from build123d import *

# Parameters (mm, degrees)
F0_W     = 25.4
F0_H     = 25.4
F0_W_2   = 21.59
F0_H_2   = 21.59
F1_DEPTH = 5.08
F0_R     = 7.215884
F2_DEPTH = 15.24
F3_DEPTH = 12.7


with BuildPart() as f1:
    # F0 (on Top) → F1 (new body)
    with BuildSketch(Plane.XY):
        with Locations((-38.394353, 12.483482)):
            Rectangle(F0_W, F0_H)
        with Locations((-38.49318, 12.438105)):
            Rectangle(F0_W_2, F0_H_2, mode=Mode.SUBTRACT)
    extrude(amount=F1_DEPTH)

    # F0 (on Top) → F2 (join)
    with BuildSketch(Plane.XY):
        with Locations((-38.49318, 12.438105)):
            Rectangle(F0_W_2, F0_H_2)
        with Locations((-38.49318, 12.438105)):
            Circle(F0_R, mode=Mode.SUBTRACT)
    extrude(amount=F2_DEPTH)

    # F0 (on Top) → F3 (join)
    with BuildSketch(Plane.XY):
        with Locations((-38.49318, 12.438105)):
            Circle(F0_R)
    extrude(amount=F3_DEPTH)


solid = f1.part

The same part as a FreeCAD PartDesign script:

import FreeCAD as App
import Part
import Sketcher
Q = App.Units.Quantity

doc = App.newDocument("Part")
body = doc.addObject("PartDesign::Body", "Body")

sketch1 = body.newObject("Sketcher::SketchObject", "Sketch")
sketch1.AttachmentSupport = (doc.getObject("XY_Plane"), [""])
sketch1.MapMode = "FlatFace"
sketch1.addGeometry([
    Part.LineSegment(App.Vector(-51, 25, 0), App.Vector(-51, 0, 0)),
    Part.LineSegment(App.Vector(-51, 0, 0), App.Vector(-26, 0, 0)),
    Part.LineSegment(App.Vector(-26, 0, 0), App.Vector(-26, 25, 0)),
    Part.LineSegment(App.Vector(-26, 25, 0), App.Vector(-51, 25, 0)),
    Part.LineSegment(App.Vector(-28, 2, 0), App.Vector(-49, 2, 0)),
    Part.LineSegment(App.Vector(-49, 2, 0), App.Vector(-49, 23, 0)),
    Part.LineSegment(App.Vector(-49, 23, 0), App.Vector(-28, 23, 0)),
    Part.LineSegment(App.Vector(-28, 23, 0), App.Vector(-28, 2, 0)),
], False)
sketch1.addConstraint([
    Sketcher.Constraint("Coincident", 0, 2, 1, 1),
    Sketcher.Constraint("Coincident", 1, 2, 2, 1),
    Sketcher.Constraint("Coincident", 2, 2, 3, 1),
    Sketcher.Constraint("Coincident", 3, 2, 0, 1),
    Sketcher.Constraint("Coincident", 4, 2, 5, 1),
    Sketcher.Constraint("Coincident", 5, 2, 6, 1),
    Sketcher.Constraint("Coincident", 6, 2, 7, 1),
    Sketcher.Constraint("Coincident", 7, 2, 4, 1),
    Sketcher.Constraint("Vertical", 0),
    Sketcher.Constraint("Horizontal", 1),
    Sketcher.Constraint("Vertical", 2),
    Sketcher.Constraint("Horizontal", 3),
    Sketcher.Constraint("Horizontal", 4),
    Sketcher.Constraint("Vertical", 5),
    Sketcher.Constraint("Horizontal", 6),
    Sketcher.Constraint("Vertical", 7),
    Sketcher.Constraint("Equal", 3, 0),
    Sketcher.Constraint("Equal", 6, 5),
    Sketcher.Constraint("DistanceX", 1, 1, 1, 2, Q("1 in")),
    Sketcher.Constraint("DistanceX", 4, 2, 4, 1, Q("0.85 in")),
    Sketcher.Constraint("DistanceX", 4, 2, -1, 1, 49.28818),
    Sketcher.Constraint("DistanceX", 0, 2, -1, 1, 51.094353),
    Sketcher.Constraint("DistanceY", 0, 2, -1, 1, 0.216518),
    Sketcher.Constraint("DistanceY", -1, 1, 4, 2, 1.643105),
])
pad1 = body.newObject("PartDesign::Pad", "Pad")
pad1.Profile = sketch1
pad1.Length = Q("0.2 in")

sketch2 = body.newObject("Sketcher::SketchObject", "Sketch001")
sketch2.AttachmentSupport = (doc.getObject("XY_Plane"), [""])
sketch2.MapMode = "FlatFace"
sketch2.addGeometry([
    Part.LineSegment(App.Vector(-49, 23, 0), App.Vector(-49, 2, 0)),
    Part.LineSegment(App.Vector(-49, 2, 0), App.Vector(-28, 2, 0)),
    Part.LineSegment(App.Vector(-28, 2, 0), App.Vector(-28, 23, 0)),
    Part.LineSegment(App.Vector(-28, 23, 0), App.Vector(-49, 23, 0)),
    Part.Circle(App.Vector(-38, 12, 0), App.Vector(0, 0, 1), 7),
], False)
sketch2.addConstraint([
    Sketcher.Constraint("Coincident", 0, 2, 1, 1),
    Sketcher.Constraint("Coincident", 1, 2, 2, 1),
    Sketcher.Constraint("Coincident", 2, 2, 3, 1),
    Sketcher.Constraint("Coincident", 3, 2, 0, 1),
    Sketcher.Constraint("Vertical", 0),
    Sketcher.Constraint("Horizontal", 1),
    Sketcher.Constraint("Vertical", 2),
    Sketcher.Constraint("Horizontal", 3),
    Sketcher.Constraint("Equal", 3, 0),
    Sketcher.Constraint("DistanceX", 1, 1, 1, 2, Q("0.85 in")),
    Sketcher.Constraint("DistanceX", 0, 2, 4, 3, Q("0.425 in")),
    Sketcher.Constraint("DistanceY", 0, 2, 4, 3, Q("0.425 in")),
    Sketcher.Constraint("Diameter", 4, 14.431768),
    Sketcher.Constraint("DistanceX", 4, 3, -1, 1, 38.49318),
    Sketcher.Constraint("DistanceY", -1, 1, 4, 3, 12.438105),
])
pad2 = body.newObject("PartDesign::Pad", "Pad001")
pad2.Profile = sketch2
pad2.Length = Q("0.6 in")

sketch3 = body.newObject("Sketcher::SketchObject", "Sketch002")
sketch3.AttachmentSupport = (doc.getObject("XY_Plane"), [""])
sketch3.MapMode = "FlatFace"
sketch3.addGeometry(Part.Circle(App.Vector(-38, 12, 0), App.Vector(0, 0, 1), 7), False)
sketch3.addConstraint([
    Sketcher.Constraint("Diameter", 0, 14.431768),
    Sketcher.Constraint("DistanceX", 0, 3, -1, 1, 38.49318),
    Sketcher.Constraint("DistanceY", -1, 1, 0, 3, 12.438105),
])
pad3 = body.newObject("PartDesign::Pad", "Pad002")
pad3.Profile = sketch3
pad3.Length = Q("0.5 in")

doc.recompute()
